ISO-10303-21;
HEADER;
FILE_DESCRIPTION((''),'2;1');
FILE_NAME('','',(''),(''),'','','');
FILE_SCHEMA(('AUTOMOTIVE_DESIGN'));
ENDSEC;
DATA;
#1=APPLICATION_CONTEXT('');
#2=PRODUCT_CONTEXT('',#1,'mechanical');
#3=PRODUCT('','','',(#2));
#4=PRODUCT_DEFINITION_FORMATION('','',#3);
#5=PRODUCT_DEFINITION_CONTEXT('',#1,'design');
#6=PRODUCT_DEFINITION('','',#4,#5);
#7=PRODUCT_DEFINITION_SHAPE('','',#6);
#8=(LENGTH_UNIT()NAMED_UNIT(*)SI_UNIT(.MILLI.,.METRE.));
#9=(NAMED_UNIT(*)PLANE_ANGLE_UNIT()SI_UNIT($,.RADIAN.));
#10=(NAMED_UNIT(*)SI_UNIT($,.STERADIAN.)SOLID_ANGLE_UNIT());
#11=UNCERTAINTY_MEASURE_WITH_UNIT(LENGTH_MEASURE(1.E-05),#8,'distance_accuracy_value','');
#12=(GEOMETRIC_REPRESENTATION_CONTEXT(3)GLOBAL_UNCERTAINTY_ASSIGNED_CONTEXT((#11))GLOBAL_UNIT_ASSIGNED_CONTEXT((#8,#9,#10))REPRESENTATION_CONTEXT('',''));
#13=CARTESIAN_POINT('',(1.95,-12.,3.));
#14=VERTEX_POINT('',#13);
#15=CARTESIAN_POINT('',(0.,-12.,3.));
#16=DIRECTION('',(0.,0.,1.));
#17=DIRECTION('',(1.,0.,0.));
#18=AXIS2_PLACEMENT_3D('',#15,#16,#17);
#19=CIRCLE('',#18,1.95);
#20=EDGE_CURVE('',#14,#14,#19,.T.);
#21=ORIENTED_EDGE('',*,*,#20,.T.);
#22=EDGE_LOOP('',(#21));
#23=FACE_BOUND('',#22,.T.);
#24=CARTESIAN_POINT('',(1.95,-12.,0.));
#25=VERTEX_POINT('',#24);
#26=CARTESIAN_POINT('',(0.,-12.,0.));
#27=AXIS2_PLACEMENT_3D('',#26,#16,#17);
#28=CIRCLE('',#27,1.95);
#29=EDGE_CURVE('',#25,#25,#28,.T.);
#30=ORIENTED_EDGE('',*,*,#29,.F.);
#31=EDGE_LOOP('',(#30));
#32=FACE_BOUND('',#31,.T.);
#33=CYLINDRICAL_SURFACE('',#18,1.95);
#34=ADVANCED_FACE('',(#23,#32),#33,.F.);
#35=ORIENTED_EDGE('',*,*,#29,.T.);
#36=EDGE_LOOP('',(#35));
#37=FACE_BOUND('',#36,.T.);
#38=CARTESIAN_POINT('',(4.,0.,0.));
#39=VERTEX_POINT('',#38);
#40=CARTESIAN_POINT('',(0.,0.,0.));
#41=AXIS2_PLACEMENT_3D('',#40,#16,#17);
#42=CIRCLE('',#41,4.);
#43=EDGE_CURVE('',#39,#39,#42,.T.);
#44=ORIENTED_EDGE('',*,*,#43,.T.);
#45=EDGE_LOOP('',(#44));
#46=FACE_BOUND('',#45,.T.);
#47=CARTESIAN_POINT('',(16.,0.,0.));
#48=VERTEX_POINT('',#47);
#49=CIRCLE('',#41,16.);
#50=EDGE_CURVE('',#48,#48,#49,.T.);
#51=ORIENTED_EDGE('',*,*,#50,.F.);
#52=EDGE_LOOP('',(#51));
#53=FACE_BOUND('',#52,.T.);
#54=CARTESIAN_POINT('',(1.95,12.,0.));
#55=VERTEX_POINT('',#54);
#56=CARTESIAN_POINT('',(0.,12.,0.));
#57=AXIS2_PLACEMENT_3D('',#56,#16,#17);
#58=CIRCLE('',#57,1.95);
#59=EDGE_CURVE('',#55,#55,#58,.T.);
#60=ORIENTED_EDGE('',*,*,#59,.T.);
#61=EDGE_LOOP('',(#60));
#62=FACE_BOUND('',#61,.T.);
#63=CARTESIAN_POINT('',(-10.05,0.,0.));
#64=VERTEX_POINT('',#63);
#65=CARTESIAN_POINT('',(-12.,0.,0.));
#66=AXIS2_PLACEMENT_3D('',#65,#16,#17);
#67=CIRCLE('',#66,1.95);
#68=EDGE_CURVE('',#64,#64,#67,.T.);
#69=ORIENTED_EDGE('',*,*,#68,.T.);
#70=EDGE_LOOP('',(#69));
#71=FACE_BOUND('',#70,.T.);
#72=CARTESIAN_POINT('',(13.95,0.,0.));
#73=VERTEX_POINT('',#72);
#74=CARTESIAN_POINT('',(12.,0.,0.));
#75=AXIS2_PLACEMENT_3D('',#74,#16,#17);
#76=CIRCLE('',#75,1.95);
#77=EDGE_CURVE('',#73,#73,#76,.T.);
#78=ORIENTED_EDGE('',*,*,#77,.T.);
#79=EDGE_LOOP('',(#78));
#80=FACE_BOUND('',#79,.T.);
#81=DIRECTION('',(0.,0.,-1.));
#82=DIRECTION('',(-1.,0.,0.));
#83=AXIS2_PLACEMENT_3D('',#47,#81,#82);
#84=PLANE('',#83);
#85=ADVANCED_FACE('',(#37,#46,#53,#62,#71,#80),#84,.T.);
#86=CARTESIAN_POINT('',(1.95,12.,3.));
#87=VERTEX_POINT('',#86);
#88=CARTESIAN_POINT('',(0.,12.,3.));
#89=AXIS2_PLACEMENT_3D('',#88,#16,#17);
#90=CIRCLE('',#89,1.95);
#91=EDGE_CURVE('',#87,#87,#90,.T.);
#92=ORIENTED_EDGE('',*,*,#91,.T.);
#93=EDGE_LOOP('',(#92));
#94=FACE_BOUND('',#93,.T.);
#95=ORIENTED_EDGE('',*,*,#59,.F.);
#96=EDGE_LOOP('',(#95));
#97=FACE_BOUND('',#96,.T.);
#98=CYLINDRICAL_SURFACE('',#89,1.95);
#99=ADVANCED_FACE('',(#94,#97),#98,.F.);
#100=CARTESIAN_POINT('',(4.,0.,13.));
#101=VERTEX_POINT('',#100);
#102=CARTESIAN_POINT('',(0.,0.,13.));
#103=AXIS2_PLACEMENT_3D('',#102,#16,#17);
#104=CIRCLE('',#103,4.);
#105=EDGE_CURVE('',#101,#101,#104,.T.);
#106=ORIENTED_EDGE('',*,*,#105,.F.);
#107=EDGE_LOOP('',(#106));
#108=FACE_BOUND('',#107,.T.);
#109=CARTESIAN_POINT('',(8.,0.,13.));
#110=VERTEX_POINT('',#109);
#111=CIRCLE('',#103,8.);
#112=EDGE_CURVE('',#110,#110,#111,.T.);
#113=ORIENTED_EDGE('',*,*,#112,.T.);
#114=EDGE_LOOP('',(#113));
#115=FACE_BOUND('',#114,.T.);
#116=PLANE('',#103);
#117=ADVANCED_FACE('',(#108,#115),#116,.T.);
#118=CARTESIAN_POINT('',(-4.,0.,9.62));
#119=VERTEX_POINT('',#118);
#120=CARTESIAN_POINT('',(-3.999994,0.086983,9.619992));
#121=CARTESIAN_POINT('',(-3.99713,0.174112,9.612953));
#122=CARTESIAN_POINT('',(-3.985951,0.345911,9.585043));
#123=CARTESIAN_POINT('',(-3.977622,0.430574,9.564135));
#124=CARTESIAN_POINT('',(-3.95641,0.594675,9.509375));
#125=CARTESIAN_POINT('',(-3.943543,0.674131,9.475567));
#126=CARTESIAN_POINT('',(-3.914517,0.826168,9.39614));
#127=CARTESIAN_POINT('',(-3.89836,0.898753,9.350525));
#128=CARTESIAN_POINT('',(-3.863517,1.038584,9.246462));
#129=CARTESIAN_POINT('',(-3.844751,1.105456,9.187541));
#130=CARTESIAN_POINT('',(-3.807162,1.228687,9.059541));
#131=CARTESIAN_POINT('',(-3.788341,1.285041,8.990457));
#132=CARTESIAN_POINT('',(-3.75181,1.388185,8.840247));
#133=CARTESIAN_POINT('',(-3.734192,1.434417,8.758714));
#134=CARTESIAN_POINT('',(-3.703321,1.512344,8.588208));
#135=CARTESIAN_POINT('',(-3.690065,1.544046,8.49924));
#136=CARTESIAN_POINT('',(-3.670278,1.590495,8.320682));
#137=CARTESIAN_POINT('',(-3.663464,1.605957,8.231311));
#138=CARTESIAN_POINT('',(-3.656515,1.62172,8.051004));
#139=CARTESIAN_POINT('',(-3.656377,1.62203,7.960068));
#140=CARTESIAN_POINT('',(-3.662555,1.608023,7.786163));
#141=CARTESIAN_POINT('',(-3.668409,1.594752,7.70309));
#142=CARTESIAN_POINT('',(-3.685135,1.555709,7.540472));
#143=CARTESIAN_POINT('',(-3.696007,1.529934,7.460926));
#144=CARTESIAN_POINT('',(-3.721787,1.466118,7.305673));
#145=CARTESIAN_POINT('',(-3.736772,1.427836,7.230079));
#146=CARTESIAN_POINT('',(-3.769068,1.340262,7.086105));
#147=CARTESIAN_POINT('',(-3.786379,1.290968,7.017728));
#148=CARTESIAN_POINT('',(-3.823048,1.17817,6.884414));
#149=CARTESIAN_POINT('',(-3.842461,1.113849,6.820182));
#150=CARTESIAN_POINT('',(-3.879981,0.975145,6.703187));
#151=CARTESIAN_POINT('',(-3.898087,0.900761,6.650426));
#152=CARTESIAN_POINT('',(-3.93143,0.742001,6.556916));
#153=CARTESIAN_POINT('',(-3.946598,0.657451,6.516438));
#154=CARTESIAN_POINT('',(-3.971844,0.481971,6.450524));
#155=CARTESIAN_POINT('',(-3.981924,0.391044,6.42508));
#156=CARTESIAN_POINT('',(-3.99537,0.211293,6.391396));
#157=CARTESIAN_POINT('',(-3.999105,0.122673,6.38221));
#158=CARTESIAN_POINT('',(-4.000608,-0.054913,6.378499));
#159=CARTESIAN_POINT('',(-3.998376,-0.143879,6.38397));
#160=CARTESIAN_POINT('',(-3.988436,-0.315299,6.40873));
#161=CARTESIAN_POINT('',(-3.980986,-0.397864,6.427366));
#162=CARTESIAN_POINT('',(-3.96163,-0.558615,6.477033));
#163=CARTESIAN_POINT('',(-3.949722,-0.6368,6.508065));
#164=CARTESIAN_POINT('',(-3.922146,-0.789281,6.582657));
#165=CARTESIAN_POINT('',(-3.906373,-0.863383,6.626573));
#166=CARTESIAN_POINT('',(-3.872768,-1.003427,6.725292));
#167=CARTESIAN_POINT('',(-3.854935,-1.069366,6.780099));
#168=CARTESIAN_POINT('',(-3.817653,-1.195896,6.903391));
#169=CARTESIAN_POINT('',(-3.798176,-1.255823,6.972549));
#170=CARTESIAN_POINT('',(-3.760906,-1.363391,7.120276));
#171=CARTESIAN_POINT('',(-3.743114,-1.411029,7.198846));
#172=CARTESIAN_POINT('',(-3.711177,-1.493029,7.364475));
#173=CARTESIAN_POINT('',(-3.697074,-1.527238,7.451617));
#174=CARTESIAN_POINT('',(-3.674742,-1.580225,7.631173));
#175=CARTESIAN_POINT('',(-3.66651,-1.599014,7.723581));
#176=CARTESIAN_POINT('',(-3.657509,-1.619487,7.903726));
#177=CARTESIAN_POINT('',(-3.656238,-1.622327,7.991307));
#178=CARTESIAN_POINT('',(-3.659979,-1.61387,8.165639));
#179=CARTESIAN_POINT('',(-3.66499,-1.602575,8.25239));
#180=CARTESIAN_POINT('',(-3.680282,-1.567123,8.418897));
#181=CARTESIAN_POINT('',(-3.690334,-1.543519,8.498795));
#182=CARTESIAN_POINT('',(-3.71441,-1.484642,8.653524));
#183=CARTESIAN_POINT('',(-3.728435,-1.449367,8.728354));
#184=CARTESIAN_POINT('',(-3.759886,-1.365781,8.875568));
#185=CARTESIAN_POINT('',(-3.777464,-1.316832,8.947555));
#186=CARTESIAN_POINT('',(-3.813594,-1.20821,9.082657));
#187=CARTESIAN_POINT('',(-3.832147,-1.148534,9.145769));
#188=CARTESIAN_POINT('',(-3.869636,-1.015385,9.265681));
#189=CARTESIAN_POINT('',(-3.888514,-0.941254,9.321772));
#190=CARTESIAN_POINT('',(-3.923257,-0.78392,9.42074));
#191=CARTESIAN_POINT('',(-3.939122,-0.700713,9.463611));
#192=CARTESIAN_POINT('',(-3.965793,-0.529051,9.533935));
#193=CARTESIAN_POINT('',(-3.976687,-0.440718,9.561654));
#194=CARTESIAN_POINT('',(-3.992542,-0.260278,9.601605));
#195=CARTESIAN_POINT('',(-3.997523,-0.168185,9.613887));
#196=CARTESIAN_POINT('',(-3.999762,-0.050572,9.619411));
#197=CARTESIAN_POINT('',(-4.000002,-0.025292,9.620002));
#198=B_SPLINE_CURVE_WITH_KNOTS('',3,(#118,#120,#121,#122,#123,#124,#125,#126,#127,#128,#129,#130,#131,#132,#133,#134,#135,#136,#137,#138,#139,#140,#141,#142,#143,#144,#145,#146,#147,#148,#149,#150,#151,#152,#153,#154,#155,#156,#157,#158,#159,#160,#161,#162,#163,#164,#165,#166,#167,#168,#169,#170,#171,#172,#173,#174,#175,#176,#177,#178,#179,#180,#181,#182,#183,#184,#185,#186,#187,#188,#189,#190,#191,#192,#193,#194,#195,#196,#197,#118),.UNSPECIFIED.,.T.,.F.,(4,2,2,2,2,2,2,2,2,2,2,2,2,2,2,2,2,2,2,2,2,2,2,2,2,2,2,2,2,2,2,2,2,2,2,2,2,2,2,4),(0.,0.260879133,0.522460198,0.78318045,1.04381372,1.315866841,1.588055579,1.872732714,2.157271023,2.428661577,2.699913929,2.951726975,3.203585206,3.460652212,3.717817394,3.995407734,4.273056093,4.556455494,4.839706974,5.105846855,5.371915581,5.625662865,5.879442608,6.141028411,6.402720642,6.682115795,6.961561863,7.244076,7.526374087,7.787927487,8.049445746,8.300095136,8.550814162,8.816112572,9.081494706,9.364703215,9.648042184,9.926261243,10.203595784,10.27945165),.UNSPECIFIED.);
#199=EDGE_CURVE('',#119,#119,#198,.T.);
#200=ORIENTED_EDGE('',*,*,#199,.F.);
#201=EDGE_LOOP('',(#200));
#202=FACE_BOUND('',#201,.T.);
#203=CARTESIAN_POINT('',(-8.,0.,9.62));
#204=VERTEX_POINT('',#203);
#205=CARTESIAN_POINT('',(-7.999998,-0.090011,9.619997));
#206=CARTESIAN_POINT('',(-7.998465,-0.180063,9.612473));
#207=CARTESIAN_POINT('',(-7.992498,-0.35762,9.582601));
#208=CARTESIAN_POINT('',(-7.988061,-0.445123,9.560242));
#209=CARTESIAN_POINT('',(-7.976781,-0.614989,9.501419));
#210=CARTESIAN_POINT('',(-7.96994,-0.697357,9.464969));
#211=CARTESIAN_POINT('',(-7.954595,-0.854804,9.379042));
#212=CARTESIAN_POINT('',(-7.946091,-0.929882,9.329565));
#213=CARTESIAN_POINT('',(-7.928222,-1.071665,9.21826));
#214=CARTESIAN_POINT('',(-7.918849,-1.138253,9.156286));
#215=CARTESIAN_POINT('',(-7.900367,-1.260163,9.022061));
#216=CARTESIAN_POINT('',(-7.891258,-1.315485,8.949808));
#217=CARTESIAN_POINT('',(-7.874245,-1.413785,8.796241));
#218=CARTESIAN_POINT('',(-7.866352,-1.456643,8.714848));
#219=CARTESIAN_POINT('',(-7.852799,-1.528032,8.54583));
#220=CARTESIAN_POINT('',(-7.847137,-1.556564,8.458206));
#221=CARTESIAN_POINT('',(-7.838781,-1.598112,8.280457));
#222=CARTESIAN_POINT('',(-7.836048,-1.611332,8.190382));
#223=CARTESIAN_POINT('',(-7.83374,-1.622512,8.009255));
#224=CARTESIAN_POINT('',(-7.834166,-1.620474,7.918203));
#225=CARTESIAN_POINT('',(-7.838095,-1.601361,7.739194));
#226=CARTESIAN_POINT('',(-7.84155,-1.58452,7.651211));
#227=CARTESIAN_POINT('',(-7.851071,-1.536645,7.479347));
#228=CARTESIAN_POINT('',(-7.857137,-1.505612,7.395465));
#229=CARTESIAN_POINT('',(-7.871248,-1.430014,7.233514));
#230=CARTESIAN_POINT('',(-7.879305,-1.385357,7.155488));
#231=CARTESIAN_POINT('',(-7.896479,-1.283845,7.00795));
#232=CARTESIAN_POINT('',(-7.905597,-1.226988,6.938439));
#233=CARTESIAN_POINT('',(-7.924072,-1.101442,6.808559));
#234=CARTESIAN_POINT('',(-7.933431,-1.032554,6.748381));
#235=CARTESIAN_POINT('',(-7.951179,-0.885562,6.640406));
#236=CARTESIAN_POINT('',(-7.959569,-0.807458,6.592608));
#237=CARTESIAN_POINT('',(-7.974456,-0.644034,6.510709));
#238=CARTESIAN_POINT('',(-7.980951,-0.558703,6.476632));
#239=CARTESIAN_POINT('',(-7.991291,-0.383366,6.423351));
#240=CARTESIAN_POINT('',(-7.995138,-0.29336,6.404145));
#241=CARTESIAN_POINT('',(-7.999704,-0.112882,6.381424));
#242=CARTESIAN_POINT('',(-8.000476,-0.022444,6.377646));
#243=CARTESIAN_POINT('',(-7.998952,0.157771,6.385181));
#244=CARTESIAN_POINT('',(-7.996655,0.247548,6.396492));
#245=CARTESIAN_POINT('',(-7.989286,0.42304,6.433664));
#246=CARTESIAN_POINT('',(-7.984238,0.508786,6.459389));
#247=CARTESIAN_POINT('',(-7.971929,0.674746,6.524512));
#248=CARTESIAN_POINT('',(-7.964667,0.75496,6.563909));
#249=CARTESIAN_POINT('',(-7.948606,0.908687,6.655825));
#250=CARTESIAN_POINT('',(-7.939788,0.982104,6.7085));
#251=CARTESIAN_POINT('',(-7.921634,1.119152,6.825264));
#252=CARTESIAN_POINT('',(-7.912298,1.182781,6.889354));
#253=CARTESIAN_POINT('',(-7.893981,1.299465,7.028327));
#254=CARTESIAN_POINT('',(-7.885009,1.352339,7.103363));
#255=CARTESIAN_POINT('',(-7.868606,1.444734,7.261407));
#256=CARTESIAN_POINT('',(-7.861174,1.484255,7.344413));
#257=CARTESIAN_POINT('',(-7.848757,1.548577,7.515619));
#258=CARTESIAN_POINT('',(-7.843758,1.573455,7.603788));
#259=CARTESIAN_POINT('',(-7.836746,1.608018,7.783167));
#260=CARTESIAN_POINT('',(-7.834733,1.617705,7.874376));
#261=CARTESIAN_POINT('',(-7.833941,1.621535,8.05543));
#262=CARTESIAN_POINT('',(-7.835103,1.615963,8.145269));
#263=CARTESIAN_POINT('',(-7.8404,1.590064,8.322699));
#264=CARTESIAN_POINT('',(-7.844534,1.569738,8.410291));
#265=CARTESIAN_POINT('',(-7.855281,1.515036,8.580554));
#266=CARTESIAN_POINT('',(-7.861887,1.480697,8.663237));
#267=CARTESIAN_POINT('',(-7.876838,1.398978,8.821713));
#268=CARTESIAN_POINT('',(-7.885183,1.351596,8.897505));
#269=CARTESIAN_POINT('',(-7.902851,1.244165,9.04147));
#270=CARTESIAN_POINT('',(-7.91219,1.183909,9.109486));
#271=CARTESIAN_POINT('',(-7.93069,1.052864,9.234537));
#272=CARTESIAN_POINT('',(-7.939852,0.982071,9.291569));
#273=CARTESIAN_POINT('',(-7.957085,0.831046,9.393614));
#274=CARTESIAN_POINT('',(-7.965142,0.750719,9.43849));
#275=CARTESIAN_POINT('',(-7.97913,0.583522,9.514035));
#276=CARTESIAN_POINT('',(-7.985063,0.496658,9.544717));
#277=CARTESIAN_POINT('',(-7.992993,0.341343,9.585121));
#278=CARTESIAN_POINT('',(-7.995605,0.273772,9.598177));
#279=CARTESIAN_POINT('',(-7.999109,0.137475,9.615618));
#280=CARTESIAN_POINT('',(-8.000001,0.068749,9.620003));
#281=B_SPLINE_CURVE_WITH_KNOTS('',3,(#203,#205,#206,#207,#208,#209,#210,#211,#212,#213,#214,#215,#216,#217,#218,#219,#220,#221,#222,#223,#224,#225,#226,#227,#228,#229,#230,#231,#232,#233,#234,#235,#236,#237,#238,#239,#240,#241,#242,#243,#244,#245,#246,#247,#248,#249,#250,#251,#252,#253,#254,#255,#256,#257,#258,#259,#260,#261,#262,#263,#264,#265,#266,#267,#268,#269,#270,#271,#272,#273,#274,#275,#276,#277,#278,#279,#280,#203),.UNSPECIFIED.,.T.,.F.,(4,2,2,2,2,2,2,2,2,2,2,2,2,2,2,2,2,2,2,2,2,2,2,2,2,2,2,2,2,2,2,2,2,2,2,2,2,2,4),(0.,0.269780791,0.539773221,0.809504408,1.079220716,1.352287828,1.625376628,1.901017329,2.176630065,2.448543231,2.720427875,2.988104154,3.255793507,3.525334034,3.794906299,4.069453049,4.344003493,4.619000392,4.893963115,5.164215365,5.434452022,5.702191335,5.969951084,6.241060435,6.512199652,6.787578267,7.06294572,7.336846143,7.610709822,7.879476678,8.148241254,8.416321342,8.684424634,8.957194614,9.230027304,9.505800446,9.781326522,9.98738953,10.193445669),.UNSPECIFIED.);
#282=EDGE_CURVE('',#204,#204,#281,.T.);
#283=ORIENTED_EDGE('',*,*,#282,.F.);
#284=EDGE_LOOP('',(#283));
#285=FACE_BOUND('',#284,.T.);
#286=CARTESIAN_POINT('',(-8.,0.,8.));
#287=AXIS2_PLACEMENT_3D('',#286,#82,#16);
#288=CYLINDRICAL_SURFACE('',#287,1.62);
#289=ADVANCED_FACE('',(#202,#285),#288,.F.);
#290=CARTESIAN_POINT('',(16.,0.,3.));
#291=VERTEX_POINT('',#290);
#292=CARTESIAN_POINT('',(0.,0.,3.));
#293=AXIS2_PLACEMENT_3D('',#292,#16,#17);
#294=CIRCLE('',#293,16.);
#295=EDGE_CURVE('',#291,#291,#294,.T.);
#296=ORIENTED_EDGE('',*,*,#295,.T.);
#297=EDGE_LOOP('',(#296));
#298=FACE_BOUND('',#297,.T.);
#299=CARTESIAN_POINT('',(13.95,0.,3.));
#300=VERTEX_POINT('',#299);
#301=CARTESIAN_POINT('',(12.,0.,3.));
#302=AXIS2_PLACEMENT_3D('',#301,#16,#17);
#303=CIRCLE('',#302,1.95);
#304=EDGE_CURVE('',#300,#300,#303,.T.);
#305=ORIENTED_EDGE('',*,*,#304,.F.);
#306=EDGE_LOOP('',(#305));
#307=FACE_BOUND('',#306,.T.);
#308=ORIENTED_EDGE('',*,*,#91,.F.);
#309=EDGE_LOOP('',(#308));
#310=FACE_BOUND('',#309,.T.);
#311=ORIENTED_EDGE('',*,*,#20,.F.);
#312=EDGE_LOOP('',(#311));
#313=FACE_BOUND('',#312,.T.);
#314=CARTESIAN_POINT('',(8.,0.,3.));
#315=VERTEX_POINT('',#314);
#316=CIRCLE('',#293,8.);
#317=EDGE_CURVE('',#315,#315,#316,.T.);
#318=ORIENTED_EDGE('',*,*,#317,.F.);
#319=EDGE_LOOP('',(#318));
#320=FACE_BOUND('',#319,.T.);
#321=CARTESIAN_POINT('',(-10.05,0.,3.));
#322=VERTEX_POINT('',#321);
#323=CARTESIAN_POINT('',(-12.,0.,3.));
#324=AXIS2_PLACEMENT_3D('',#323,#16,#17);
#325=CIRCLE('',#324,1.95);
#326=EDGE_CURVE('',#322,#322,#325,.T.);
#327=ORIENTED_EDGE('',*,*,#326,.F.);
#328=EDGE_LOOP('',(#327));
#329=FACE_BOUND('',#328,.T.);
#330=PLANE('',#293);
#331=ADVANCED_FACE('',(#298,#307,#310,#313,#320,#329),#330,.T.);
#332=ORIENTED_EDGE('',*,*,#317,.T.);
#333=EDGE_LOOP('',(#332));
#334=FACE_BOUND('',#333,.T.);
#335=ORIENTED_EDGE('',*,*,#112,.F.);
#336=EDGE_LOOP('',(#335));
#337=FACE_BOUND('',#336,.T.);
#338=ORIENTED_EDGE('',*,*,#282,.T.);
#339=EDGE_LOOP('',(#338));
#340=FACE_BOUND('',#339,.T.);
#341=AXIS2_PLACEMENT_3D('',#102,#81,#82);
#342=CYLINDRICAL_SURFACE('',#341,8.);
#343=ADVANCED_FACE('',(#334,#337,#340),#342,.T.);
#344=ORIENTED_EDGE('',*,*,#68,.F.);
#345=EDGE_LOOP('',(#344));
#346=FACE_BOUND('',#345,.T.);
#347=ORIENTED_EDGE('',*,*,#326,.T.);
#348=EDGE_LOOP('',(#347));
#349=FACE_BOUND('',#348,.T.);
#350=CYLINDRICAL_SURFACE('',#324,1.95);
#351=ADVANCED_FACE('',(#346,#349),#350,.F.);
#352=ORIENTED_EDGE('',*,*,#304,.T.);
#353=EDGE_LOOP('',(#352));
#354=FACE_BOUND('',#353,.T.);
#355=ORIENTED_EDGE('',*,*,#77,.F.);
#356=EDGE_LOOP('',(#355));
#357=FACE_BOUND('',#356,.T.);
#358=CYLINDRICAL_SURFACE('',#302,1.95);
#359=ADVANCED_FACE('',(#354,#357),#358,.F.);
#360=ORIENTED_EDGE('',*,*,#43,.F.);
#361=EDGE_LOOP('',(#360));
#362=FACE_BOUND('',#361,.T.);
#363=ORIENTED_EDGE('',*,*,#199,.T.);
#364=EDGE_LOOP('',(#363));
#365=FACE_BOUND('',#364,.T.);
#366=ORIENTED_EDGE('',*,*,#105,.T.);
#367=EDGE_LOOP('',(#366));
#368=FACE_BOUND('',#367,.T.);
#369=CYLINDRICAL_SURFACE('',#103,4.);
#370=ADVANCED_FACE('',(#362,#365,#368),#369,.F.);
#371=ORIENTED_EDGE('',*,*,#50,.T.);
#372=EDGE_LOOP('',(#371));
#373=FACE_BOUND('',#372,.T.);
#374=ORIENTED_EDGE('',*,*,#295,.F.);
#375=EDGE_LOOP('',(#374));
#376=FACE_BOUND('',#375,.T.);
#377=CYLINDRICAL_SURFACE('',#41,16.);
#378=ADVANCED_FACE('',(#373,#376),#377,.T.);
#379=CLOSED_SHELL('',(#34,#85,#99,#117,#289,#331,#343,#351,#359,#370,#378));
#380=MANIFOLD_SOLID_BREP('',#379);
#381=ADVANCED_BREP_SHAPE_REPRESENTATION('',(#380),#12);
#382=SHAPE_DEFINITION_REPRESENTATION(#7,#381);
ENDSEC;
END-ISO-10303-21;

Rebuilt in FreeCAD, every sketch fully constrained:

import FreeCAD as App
import Part
import Sketcher
from FreeCAD import Vector
Q = App.Units.Quantity

doc = App.newDocument("Part")
body = doc.addObject("PartDesign::Body", "Body")

sketch1 = body.newObject("Sketcher::SketchObject", "Sketch")
sketch1.AttachmentSupport = (doc.getObject("XZ_Plane"), [""])
sketch1.MapMode = "FlatFace"
sketch1.addGeometry(Part.LineSegment(Vector(0, 0, 0), Vector(0, 3, 0)), False)
sketch1.addGeometry(Part.LineSegment(Vector(0, 3, 0), Vector(16, 3, 0)), False)
sketch1.addGeometry(Part.LineSegment(Vector(16, 3, 0), Vector(16, 0, 0)), False)
sketch1.addGeometry(Part.LineSegment(Vector(16, 0, 0), Vector(0, 0, 0)), False)
sketch1.addConstraint(Sketcher.Constraint("Coincident", 0, 2, 1, 1))
sketch1.addConstraint(Sketcher.Constraint("Coincident", 1, 2, 2, 1))
sketch1.addConstraint(Sketcher.Constraint("Coincident", 2, 2, 3, 1))
sketch1.addConstraint(Sketcher.Constraint("Coincident", 3, 2, 0, 1))
sketch1.addConstraint(Sketcher.Constraint("Vertical", 0))
sketch1.addConstraint(Sketcher.Constraint("Horizontal", 1))
sketch1.addConstraint(Sketcher.Constraint("Vertical", 2))
sketch1.addConstraint(Sketcher.Constraint("Horizontal", 3))
sketch1.addConstraint(Sketcher.Constraint("Coincident", 3, 2, -1, 1))
sketch1.addConstraint(Sketcher.Constraint("DistanceX", 1, 1, 1, 2, Q("16 mm")))
sketch1.addConstraint(Sketcher.Constraint("DistanceY", 0, 1, 0, 2, Q("3 mm")))
revolution = body.newObject("PartDesign::Revolution", "Revolution")
revolution.Profile = sketch1
revolution.ReferenceAxis = (sketch1, ["V_Axis"])
revolution.Angle = 360

sketch2 = body.newObject("Sketcher::SketchObject", "Sketch001")
sketch2.AttachmentSupport = (doc.getObject("XY_Plane"), [""])
sketch2.MapMode = "FlatFace"
sketch2.AttachmentOffset = App.Placement(Vector(0, 0, 3), App.Rotation())
sketch2.addGeometry(Part.Circle(Vector(0, 0, 0), Vector(0, 0, 1), 8), False)
sketch2.addConstraint(Sketcher.Constraint("Coincident", 0, 3, -1, 1))
sketch2.addConstraint(Sketcher.Constraint("Diameter", 0, Q("16 mm")))
pad1 = body.newObject("PartDesign::Pad", "Pad")
pad1.Profile = sketch2
pad1.Length = 10

sketch3 = body.newObject("Sketcher::SketchObject", "Sketch002")
sketch3.AttachmentSupport = (doc.getObject("XY_Plane"), [""])
sketch3.MapMode = "FlatFace"
sketch3.AttachmentOffset = App.Placement(Vector(0, 0, 3), App.Rotation())
sketch3.addGeometry(Part.Circle(Vector(12, 0, 0), Vector(0, 0, 1), 1.9), False)
sketch3.addGeometry(Part.Circle(Vector(0, 12, 0), Vector(0, 0, 1), 1.9), False)
sketch3.addGeometry(Part.Circle(Vector(-12, 0, 0), Vector(0, 0, 1), 1.9), False)
sketch3.addGeometry(Part.Circle(Vector(0, -12, 0), Vector(0, 0, 1), 1.9), False)
sketch3.addConstraint(Sketcher.Constraint("Equal", 0, 1))
sketch3.addConstraint(Sketcher.Constraint("Equal", 1, 2))
sketch3.addConstraint(Sketcher.Constraint("Equal", 2, 3))
sketch3.addConstraint(Sketcher.Constraint("Symmetric", 0, 3, 2, 3, -1, 1))
sketch3.addConstraint(Sketcher.Constraint("Symmetric", 1, 3, 3, 3, -1, 1))
sketch3.addConstraint(Sketcher.Constraint("PointOnObject", 0, 3, -1))
sketch3.addConstraint(Sketcher.Constraint("PointOnObject", 1, 3, -2))
sketch3.addConstraint(Sketcher.Constraint("Diameter", 0, Q("3.9 mm")))
sketch3.addConstraint(Sketcher.Constraint("DistanceX", -1, 1, 0, 3, Q("12 mm")))
sketch3.addConstraint(Sketcher.Constraint("DistanceY", -1, 1, 1, 3, Q("12 mm")))
doc.recompute()
hole = body.newObject("PartDesign::Hole", "Hole")
hole.Profile = sketch3
hole.ThreadType = "None"
hole.Diameter = 3.9
hole.DepthType = "ThroughAll"

sketch4 = body.newObject("Sketcher::SketchObject", "Sketch003")
sketch4.AttachmentSupport = (doc.getObject("XY_Plane"), [""])
sketch4.MapMode = "FlatFace"
sketch4.AttachmentOffset = App.Placement(Vector(0, 0, 13), App.Rotation())
sketch4.addGeometry(Part.Circle(Vector(0, 0, 0), Vector(0, 0, 1), 4), False)
sketch4.addConstraint(Sketcher.Constraint("Coincident", 0, 3, -1, 1))
sketch4.addConstraint(Sketcher.Constraint("Diameter", 0, Q("8 mm")))
doc.recompute()
hole2 = body.newObject("PartDesign::Hole", "Hole001")
hole2.Profile = sketch4
hole2.ThreadType = "None"
hole2.Diameter = 8
hole2.DepthType = "ThroughAll"

sketch5 = body.newObject("Sketcher::SketchObject", "Sketch004")
sketch5.AttachmentSupport = (doc.getObject("YZ_Plane"), [""])
sketch5.MapMode = "FlatFace"
sketch5.AttachmentOffset = App.Placement(Vector(0, 0, -8), App.Rotation())
sketch5.addGeometry(Part.Circle(Vector(0, 8, 0), Vector(0, 0, 1), 1.6), False)
sketch5.addConstraint(Sketcher.Constraint("PointOnObject", 0, 3, -2))
sketch5.addConstraint(Sketcher.Constraint("Diameter", 0, Q("3.24 mm")))
sketch5.addConstraint(Sketcher.Constraint("DistanceY", -1, 1, 0, 3, Q("8 mm")))
pocket1 = body.newObject("PartDesign::Pocket", "Pocket")
pocket1.Profile = sketch5
pocket1.Type = "UpToFirst"
pocket1.Reversed = True

doc.recompute()
